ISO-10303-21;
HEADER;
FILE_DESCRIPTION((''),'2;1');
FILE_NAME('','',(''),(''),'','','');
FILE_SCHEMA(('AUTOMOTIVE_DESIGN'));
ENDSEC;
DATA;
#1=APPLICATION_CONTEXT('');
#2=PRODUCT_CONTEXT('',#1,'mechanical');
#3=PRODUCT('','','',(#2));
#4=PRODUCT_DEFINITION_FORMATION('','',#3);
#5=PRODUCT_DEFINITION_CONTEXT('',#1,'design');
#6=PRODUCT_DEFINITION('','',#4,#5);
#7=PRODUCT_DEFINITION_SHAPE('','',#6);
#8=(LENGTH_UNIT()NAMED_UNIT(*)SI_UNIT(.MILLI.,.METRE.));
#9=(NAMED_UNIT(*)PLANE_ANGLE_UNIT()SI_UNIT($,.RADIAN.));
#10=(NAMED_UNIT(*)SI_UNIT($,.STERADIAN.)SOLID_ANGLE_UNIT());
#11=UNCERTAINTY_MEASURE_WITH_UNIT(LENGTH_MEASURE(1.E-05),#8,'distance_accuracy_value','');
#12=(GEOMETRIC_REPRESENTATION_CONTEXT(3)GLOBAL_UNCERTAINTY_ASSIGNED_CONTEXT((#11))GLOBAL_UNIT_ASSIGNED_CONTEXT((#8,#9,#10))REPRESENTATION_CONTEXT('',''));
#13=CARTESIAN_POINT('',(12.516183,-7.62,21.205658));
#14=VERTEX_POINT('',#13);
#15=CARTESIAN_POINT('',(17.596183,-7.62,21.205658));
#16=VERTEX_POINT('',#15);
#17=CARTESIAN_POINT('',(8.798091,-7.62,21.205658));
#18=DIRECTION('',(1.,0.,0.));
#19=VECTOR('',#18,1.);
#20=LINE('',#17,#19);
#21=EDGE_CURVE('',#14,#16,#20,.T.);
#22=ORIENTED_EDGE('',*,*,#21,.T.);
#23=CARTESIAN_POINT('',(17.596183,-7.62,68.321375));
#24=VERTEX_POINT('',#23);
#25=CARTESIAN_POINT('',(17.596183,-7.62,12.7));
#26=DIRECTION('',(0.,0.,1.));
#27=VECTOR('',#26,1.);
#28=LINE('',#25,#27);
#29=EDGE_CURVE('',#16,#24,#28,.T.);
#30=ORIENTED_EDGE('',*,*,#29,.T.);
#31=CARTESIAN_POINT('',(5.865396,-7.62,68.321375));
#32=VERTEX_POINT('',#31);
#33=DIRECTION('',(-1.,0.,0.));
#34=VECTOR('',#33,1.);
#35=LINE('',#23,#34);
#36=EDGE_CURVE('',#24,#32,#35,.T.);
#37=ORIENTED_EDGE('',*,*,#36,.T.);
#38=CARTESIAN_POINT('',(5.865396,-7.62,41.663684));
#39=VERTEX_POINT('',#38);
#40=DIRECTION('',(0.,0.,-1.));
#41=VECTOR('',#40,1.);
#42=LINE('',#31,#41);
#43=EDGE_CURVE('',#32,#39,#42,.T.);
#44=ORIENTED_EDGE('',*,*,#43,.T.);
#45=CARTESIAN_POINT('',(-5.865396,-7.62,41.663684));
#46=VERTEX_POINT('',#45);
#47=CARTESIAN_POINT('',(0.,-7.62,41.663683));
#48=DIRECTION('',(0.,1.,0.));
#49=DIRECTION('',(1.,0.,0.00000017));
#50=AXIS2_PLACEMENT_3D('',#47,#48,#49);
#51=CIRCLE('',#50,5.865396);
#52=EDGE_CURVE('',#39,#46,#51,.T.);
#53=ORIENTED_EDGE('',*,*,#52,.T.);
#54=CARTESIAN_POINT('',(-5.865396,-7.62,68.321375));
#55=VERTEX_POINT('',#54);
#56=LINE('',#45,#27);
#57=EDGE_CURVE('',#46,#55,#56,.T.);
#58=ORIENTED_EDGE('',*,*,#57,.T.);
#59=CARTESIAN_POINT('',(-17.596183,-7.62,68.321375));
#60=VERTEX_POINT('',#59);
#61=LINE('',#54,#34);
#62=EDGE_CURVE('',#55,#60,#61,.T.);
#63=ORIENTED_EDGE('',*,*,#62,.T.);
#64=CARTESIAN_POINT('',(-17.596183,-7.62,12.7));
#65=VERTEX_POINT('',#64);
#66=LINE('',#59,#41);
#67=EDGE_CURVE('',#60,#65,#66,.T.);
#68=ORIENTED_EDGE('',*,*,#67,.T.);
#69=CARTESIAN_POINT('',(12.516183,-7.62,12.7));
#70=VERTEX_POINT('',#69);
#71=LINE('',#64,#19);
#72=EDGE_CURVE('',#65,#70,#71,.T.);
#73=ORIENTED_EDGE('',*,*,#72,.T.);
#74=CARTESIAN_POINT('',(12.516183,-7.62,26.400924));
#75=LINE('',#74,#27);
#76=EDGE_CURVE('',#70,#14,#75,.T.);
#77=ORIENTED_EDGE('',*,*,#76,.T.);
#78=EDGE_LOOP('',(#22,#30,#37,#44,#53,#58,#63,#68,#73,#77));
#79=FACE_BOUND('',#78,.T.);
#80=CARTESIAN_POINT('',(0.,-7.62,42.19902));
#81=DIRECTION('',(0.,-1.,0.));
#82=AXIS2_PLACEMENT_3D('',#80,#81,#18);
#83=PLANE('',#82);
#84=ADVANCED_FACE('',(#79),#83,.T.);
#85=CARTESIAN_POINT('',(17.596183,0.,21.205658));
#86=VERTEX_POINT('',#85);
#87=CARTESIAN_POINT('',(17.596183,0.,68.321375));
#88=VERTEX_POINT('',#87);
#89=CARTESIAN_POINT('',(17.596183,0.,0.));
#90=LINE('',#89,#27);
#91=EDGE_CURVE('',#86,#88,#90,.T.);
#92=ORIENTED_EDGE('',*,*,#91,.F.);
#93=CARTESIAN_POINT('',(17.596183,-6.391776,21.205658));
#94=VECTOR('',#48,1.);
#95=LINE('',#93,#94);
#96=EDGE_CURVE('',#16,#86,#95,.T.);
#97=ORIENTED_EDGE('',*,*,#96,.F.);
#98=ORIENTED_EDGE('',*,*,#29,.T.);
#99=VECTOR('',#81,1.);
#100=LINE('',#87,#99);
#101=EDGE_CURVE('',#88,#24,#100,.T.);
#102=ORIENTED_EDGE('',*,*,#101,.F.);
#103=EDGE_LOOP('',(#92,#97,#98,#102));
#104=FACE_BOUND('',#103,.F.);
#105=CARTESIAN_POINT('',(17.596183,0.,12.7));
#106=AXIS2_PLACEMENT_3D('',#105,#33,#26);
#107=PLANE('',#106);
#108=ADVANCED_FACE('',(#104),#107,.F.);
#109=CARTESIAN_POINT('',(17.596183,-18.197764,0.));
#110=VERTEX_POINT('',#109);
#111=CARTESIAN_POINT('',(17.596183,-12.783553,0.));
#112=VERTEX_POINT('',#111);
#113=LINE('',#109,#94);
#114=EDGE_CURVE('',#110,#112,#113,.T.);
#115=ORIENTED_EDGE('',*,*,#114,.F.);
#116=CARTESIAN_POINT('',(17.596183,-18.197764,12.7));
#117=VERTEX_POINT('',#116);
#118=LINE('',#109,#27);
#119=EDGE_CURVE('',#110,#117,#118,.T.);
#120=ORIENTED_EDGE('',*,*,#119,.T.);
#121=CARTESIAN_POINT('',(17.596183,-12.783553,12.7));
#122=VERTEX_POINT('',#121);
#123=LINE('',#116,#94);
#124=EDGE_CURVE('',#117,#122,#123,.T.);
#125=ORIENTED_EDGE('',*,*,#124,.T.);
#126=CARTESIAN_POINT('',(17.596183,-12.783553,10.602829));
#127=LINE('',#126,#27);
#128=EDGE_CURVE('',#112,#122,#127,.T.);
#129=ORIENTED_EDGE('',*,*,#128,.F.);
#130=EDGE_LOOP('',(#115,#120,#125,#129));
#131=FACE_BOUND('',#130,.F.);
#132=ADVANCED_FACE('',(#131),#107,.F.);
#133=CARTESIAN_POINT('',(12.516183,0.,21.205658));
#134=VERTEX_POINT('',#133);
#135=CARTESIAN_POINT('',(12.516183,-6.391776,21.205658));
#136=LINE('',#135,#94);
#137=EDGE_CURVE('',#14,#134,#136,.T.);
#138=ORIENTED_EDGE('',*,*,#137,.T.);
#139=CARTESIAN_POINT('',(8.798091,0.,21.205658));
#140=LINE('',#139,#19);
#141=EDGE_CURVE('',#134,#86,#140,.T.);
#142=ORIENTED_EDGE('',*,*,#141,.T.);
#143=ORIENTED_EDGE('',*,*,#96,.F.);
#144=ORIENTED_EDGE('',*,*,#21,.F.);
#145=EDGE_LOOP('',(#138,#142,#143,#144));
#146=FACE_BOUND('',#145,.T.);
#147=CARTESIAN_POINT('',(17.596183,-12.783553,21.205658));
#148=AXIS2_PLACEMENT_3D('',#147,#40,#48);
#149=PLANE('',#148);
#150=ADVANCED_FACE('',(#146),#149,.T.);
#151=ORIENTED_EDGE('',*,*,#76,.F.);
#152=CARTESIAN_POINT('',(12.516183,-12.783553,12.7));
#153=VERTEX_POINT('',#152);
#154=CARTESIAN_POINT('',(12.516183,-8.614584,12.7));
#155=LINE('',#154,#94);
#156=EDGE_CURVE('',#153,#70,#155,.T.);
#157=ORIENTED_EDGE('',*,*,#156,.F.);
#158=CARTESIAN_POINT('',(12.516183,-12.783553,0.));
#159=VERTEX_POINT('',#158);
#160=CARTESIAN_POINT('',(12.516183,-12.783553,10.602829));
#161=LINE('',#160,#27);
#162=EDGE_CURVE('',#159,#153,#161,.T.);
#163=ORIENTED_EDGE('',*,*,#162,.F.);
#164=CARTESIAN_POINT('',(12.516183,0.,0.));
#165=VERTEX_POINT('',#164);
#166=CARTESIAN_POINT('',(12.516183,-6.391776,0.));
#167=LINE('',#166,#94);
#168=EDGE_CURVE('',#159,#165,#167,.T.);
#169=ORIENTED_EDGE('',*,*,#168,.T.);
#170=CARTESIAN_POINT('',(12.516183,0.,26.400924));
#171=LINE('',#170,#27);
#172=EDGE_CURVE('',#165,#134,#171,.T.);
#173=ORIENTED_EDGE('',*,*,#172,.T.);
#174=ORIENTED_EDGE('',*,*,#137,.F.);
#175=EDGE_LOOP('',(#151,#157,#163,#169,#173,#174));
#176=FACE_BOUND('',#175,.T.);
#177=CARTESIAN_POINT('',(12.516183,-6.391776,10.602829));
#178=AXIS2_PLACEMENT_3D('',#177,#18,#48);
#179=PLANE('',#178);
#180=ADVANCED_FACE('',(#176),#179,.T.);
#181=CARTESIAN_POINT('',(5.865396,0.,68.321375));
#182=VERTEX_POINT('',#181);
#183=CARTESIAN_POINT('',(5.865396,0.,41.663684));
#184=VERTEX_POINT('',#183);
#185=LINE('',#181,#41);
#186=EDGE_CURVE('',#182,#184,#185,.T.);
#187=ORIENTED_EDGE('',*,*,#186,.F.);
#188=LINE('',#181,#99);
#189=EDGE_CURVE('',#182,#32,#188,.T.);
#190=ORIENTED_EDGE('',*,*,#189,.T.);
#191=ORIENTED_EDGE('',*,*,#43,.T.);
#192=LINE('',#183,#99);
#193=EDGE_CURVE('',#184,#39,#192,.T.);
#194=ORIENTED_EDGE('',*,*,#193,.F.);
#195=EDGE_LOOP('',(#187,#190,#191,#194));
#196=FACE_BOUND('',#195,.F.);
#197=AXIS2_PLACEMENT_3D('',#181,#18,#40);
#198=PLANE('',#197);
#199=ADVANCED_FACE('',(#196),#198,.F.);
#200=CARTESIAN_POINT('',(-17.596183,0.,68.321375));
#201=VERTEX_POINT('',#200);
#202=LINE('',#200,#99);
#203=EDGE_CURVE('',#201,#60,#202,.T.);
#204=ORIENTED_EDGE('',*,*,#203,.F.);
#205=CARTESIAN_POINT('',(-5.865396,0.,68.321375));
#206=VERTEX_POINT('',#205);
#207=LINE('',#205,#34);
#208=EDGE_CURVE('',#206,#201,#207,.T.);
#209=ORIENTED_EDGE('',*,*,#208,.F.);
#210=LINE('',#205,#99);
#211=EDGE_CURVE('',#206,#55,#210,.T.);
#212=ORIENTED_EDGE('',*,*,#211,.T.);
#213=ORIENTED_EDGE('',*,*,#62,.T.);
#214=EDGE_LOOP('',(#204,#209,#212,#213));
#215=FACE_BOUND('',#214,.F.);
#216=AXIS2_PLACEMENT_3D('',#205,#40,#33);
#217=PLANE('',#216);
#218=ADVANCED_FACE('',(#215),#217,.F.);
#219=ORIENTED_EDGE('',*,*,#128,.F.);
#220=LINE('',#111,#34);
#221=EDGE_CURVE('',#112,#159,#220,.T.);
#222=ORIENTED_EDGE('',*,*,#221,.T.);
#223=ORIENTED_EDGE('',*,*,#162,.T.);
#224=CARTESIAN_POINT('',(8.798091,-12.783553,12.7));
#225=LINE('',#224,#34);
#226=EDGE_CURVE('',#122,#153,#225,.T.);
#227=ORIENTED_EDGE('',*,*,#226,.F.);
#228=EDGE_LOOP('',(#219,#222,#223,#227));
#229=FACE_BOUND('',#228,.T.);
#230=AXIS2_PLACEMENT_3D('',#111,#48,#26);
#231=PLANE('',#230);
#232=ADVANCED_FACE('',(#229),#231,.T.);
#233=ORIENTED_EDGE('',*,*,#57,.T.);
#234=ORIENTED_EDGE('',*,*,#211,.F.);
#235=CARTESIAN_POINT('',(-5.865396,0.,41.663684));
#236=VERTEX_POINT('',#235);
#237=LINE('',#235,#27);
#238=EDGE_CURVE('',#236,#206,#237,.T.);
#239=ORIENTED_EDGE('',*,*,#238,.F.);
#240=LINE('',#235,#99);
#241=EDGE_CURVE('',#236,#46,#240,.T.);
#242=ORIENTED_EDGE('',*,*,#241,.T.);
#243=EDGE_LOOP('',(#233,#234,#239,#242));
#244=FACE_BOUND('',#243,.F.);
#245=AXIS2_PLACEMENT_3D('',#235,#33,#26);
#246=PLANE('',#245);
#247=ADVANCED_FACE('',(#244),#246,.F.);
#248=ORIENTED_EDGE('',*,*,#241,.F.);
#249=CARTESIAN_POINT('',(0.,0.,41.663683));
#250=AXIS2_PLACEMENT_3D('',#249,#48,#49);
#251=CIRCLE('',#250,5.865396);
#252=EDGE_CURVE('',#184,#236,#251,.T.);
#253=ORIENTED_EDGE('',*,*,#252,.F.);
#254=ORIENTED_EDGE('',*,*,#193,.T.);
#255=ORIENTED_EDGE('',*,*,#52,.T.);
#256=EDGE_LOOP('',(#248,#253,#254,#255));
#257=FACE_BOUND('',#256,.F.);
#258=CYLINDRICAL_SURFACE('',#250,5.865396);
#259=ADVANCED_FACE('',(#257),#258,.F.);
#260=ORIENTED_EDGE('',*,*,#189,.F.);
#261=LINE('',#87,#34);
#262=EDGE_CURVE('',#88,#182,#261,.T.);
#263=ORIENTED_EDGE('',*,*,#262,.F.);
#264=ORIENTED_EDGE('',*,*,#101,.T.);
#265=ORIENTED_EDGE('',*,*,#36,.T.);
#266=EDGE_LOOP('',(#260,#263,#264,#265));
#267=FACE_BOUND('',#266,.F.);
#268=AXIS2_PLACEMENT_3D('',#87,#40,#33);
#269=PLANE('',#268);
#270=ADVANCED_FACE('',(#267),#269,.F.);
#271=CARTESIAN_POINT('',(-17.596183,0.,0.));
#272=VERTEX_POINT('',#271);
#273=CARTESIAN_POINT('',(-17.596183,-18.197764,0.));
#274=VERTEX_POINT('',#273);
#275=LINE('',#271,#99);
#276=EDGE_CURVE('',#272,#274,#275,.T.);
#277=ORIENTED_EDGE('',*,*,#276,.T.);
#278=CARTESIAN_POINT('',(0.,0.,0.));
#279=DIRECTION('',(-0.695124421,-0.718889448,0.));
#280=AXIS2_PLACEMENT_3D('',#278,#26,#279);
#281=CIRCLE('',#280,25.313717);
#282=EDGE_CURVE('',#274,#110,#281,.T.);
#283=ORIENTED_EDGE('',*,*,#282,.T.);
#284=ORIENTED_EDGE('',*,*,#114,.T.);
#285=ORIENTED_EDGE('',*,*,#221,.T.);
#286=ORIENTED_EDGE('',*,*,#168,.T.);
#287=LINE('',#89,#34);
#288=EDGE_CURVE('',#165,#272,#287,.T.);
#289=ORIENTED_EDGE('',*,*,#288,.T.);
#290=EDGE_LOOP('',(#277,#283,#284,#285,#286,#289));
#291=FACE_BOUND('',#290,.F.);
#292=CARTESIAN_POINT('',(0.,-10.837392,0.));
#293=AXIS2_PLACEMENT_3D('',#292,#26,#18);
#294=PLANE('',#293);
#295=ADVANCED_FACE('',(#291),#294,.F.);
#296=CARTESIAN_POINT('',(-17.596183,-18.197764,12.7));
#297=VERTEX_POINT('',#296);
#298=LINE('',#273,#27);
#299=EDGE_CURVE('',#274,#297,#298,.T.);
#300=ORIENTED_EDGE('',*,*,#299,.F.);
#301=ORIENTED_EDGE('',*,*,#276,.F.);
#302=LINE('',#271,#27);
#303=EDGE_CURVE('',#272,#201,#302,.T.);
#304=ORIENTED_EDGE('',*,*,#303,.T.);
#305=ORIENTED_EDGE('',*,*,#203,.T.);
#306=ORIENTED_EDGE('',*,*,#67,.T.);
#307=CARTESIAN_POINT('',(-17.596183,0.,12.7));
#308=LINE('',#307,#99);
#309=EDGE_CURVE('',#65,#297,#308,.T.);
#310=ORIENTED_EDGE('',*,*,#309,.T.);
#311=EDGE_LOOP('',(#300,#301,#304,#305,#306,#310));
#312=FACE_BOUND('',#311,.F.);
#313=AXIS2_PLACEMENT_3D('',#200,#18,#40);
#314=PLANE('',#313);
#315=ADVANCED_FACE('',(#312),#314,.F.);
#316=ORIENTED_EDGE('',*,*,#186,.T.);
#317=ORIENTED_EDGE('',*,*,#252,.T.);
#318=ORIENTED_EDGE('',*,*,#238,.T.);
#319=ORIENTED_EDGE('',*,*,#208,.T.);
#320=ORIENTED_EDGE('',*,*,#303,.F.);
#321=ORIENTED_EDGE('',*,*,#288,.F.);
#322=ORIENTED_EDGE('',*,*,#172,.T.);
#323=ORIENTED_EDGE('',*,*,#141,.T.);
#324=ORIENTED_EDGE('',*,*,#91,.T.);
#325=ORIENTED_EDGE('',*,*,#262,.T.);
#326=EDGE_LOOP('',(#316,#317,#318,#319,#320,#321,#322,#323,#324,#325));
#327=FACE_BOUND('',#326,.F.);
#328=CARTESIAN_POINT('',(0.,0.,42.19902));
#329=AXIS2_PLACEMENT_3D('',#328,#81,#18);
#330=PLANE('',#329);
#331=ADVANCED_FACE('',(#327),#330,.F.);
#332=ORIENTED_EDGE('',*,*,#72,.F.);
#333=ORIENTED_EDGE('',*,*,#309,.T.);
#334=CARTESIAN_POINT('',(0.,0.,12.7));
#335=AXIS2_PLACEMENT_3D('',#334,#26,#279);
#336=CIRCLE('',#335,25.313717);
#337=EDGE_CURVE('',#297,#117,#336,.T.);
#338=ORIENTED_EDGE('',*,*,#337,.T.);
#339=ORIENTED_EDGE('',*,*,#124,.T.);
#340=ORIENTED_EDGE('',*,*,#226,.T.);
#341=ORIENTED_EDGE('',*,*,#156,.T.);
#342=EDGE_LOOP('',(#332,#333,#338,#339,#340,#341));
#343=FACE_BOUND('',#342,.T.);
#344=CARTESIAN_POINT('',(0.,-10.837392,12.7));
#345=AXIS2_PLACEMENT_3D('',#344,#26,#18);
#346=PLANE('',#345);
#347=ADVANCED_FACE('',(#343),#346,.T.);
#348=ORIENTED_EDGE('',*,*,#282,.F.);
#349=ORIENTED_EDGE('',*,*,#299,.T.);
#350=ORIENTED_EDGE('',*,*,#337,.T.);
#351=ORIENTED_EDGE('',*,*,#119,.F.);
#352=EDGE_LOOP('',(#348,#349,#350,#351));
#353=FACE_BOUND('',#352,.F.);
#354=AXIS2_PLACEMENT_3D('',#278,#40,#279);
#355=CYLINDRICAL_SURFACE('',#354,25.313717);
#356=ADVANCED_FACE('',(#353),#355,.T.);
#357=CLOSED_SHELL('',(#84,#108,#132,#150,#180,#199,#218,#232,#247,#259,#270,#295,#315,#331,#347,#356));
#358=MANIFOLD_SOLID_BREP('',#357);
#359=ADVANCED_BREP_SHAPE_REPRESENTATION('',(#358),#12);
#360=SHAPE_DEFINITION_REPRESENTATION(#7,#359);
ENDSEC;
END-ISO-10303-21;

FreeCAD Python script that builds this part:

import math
import FreeCAD as App
import Part
import Sketcher
from FreeCAD import Vector
Q = App.Units.Quantity

doc = App.newDocument("Part")
body = doc.addObject("PartDesign::Body", "Body")

# Sketch on XY plane
sketch1 = body.newObject("Sketcher::SketchObject", "Sketch")
sketch1.AttachmentSupport = (doc.getObject("XY_Plane"), [""])
sketch1.MapMode = "FlatFace"
sketch1.addGeometry(Part.LineSegment(Vector(18, -18, 0), Vector(18, 0, 0)), False)
sketch1.addGeometry(Part.LineSegment(Vector(18, 0, 0), Vector(-18, 0, 0)), False)
sketch1.addGeometry(Part.LineSegment(Vector(-18, 0, 0), Vector(-18, -18, 0)), False)
sketch1.addGeometry(Part.ArcOfCircle(Part.Circle(Vector(0, 0, 0), Vector(0, 0, 1), 25), math.radians(-134), math.radians(-46)), False)
sketch1.addConstraint(Sketcher.Constraint("Coincident", 0, 2, 1, 1))
sketch1.addConstraint(Sketcher.Constraint("Coincident", 1, 2, 2, 1))
sketch1.addConstraint(Sketcher.Constraint("Coincident", 2, 2, 3, 1))
sketch1.addConstraint(Sketcher.Constraint("Coincident", 3, 2, 0, 1))
sketch1.addConstraint(Sketcher.Constraint("Vertical", 0))
sketch1.addConstraint(Sketcher.Constraint("Horizontal", 1))
sketch1.addConstraint(Sketcher.Constraint("Vertical", 2))
sketch1.addConstraint(Sketcher.Constraint("Coincident", 3, 3, -1, 1))
sketch1.addConstraint(Sketcher.Constraint("Symmetric", 0, 2, 1, 2, -1, 1))
sketch1.addConstraint(Sketcher.Constraint("Radius", 3, 25.313717))
sketch1.addConstraint(Sketcher.Constraint("DistanceX", 1, 2, 1, 1, 35.192366))
pad1 = body.newObject("PartDesign::Pad", "Pad")
pad1.Profile = sketch1
pad1.Length = Q("0.5 in")

# Sketch on XZ plane
sketch2 = body.newObject("Sketcher::SketchObject", "Sketch001")
sketch2.AttachmentSupport = (doc.getObject("XZ_Plane"), [""])
sketch2.MapMode = "FlatFace"
sketch2.addGeometry(Part.LineSegment(Vector(-18, 13, 0), Vector(18, 13, 0)), False)
sketch2.addGeometry(Part.LineSegment(Vector(18, 13, 0), Vector(18, 68, 0)), False)
sketch2.addGeometry(Part.LineSegment(Vector(18, 68, 0), Vector(6, 68, 0)), False)
sketch2.addGeometry(Part.LineSegment(Vector(6, 68, 0), Vector(6, 42, 0)), False)
sketch2.addGeometry(Part.ArcOfCircle(Part.Circle(Vector(0, 42, 0), Vector(0, 0, 1), 6), math.radians(180), math.radians(360)), False)
sketch2.addGeometry(Part.LineSegment(Vector(-6, 42, 0), Vector(-6, 68, 0)), False)
sketch2.addGeometry(Part.LineSegment(Vector(-6, 68, 0), Vector(-18, 68, 0)), False)
sketch2.addGeometry(Part.LineSegment(Vector(-18, 68, 0), Vector(-18, 13, 0)), False)
sketch2.addConstraint(Sketcher.Constraint("Coincident", 0, 2, 1, 1))
sketch2.addConstraint(Sketcher.Constraint("Coincident", 1, 2, 2, 1))
sketch2.addConstraint(Sketcher.Constraint("Coincident", 2, 2, 3, 1))
sketch2.addConstraint(Sketcher.Constraint("Tangent", 3, 2, 4, 2))
sketch2.addConstraint(Sketcher.Constraint("Tangent", 4, 1, 5, 1))
sketch2.addConstraint(Sketcher.Constraint("Coincident", 5, 2, 6, 1))
sketch2.addConstraint(Sketcher.Constraint("Coincident", 6, 2, 7, 1))
sketch2.addConstraint(Sketcher.Constraint("Coincident", 7, 2, 0, 1))
sketch2.addConstraint(Sketcher.Constraint("Horizontal", 0))
sketch2.addConstraint(Sketcher.Constraint("Vertical", 1))
sketch2.addConstraint(Sketcher.Constraint("Horizontal", 2))
sketch2.addConstraint(Sketcher.Constraint("Vertical", 3))
sketch2.addConstraint(Sketcher.Constraint("Vertical", 5))
sketch2.addConstraint(Sketcher.Constraint("Horizontal", 6))
sketch2.addConstraint(Sketcher.Constraint("Vertical", 7))
sketch2.addConstraint(Sketcher.Constraint("Symmetric", 2, 2, 5, 2, -2))
sketch2.addConstraint(Sketcher.Constraint("Equal", 2, 6))
sketch2.addConstraint(Sketcher.Constraint("DistanceY", -1, 1, 0, 2, Q("0.5 in")))
sketch2.addConstraint(Sketcher.Constraint("Radius", 4, 5.865396))
sketch2.addConstraint(Sketcher.Constraint("DistanceY", 3, 2, 3, 1, 26.657691))
sketch2.addConstraint(Sketcher.Constraint("DistanceX", 0, 1, 0, 2, 35.192366))
sketch2.addConstraint(Sketcher.Constraint("DistanceY", 1, 1, 1, 2, 55.621375))
pad2 = body.newObject("PartDesign::Pad", "Pad001")
pad2.Profile = sketch2
pad2.Length = Q("0.3 in")

# Sketch on YZ plane
sketch3 = body.newObject("Sketcher::SketchObject", "Sketch002")
sketch3.AttachmentSupport = (doc.getObject("YZ_Plane"), [""])
sketch3.MapMode = "FlatFace"
sketch3.AttachmentOffset = App.Placement(Vector(0, 0, 17.596183), App.Rotation())
sketch3.addGeometry(Part.LineSegment(Vector(-13, 21, 0), Vector(-13, 0, 0)), False)
sketch3.addGeometry(Part.LineSegment(Vector(-13, 0, 0), Vector(0, 0, 0)), False)
sketch3.addGeometry(Part.LineSegment(Vector(0, 0, 0), Vector(0, 21, 0)), False)
sketch3.addGeometry(Part.LineSegment(Vector(0, 21, 0), Vector(-13, 21, 0)), False)
sketch3.addConstraint(Sketcher.Constraint("Coincident", 0, 2, 1, 1))
sketch3.addConstraint(Sketcher.Constraint("Coincident", 1, 2, 2, 1))
sketch3.addConstraint(Sketcher.Constraint("Coincident", 2, 2, 3, 1))
sketch3.addConstraint(Sketcher.Constraint("Coincident", 3, 2, 0, 1))
sketch3.addConstraint(Sketcher.Constraint("Vertical", 0))
sketch3.addConstraint(Sketcher.Constraint("Horizontal", 1))
sketch3.addConstraint(Sketcher.Constraint("Vertical", 2))
sketch3.addConstraint(Sketcher.Constraint("Horizontal", 3))
sketch3.addConstraint(Sketcher.Constraint("Coincident", 1, 2, -1, 1))
sketch3.addConstraint(Sketcher.Constraint("DistanceX", 1, 1, 1, 2, 12.783553))
sketch3.addConstraint(Sketcher.Constraint("DistanceY", 0, 2, 0, 1, 21.205658))
pocket1 = body.newObject("PartDesign::Pocket", "Pocket")
pocket1.Profile = sketch3
pocket1.Length = Q("0.2 in")

doc.recompute()
